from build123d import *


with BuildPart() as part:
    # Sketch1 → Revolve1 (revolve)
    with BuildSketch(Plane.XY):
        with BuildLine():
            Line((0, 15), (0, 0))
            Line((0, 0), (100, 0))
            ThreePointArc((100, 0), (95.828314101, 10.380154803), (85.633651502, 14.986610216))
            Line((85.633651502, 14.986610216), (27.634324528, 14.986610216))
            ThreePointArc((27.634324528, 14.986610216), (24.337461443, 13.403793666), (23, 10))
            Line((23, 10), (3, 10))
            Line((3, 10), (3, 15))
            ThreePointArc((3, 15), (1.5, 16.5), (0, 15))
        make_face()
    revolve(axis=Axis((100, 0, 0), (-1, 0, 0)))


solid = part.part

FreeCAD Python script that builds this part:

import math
import FreeCAD as App
import Part
import Sketcher

V = App.Vector

doc = App.newDocument("Part")
body = doc.addObject("PartDesign::Body", "Body")

# Sketch on XY plane
sketch1 = body.newObject("Sketcher::SketchObject", "Sketch")
sketch1.AttachmentSupport = (doc.getObject("XY_Plane"), [""])
sketch1.MapMode = "FlatFace"
sketch1.addGeometry([
    Part.LineSegment(V(0, 15, 0), V(0, 0, 0)),  # 0
    Part.LineSegment(V(0, 0, 0), V(100, 0, 0)),  # 1
    Part.ArcOfCircle(Part.Circle(V(85, 0, 0), V(0, 0, 1), 15), math.radians(0), math.radians(88)),  # 2
    Part.LineSegment(V(85.6, 15, 0), V(27.6, 15, 0)),  # 3
    Part.ArcOfCircle(Part.Circle(V(28, 10, 0), V(0, 0, 1), 5), math.radians(94), math.radians(180)),  # 4
    Part.LineSegment(V(23, 10, 0), V(3, 10, 0)),  # 5
    Part.LineSegment(V(3, 10, 0), V(3, 15, 0)),  # 6
    Part.ArcOfCircle(Part.Circle(V(1.5, 15, 0), V(0, 0, 1), 1.5), math.radians(0), math.radians(180)),  # 7
], False)
sketch1.addConstraint([
    Sketcher.Constraint("Coincident", 0, 2, 1, 1),
    Sketcher.Constraint("Coincident", 1, 2, 2, 1),
    Sketcher.Constraint("Coincident", 2, 2, 3, 1),
    Sketcher.Constraint("Coincident", 3, 2, 4, 1),
    Sketcher.Constraint("Coincident", 4, 2, 5, 1),
    Sketcher.Constraint("Coincident", 5, 2, 6, 1),
    Sketcher.Constraint("Tangent", 6, 2, 7, 1),
    Sketcher.Constraint("Tangent", 7, 2, 0, 1),
    Sketcher.Constraint("Vertical", 0),
    Sketcher.Constraint("Horizontal", 1),
    Sketcher.Constraint("Horizontal", 3),
    Sketcher.Constraint("Horizontal", 5),
    Sketcher.Constraint("Vertical", 6),
    Sketcher.Constraint("Coincident", 0, 2, -1, 1),
    Sketcher.Constraint("PointOnObject", 2, 3, -1),
    Sketcher.Constraint("Radius", 2, 15.0),
    Sketcher.Constraint("Radius", 4, 5.0),
    Sketcher.Constraint("Radius", 7, 1.5),
    Sketcher.Constraint("DistanceX", 1, 1, 1, 2, 100.0),
    Sketcher.Constraint("DistanceX", 5, 2, 5, 1, 20.0),
    Sketcher.Constraint("DistanceY", 0, 2, 0, 1, 15.0),
    Sketcher.Constraint("DistanceY", 6, 1, 6, 2, 5.0),
    Sketcher.Constraint("DistanceY", -1, 1, 4, 3, 10.0),
    Sketcher.Constraint("DistanceX", 3, 2, 3, 1, 57.999327),
])
revolution = body.newObject("PartDesign::Revolution", "Revolution")
revolution.Profile = sketch1
revolution.ReferenceAxis = (sketch1, ["H_Axis"])
revolution.Angle = 360

doc.recompute()
